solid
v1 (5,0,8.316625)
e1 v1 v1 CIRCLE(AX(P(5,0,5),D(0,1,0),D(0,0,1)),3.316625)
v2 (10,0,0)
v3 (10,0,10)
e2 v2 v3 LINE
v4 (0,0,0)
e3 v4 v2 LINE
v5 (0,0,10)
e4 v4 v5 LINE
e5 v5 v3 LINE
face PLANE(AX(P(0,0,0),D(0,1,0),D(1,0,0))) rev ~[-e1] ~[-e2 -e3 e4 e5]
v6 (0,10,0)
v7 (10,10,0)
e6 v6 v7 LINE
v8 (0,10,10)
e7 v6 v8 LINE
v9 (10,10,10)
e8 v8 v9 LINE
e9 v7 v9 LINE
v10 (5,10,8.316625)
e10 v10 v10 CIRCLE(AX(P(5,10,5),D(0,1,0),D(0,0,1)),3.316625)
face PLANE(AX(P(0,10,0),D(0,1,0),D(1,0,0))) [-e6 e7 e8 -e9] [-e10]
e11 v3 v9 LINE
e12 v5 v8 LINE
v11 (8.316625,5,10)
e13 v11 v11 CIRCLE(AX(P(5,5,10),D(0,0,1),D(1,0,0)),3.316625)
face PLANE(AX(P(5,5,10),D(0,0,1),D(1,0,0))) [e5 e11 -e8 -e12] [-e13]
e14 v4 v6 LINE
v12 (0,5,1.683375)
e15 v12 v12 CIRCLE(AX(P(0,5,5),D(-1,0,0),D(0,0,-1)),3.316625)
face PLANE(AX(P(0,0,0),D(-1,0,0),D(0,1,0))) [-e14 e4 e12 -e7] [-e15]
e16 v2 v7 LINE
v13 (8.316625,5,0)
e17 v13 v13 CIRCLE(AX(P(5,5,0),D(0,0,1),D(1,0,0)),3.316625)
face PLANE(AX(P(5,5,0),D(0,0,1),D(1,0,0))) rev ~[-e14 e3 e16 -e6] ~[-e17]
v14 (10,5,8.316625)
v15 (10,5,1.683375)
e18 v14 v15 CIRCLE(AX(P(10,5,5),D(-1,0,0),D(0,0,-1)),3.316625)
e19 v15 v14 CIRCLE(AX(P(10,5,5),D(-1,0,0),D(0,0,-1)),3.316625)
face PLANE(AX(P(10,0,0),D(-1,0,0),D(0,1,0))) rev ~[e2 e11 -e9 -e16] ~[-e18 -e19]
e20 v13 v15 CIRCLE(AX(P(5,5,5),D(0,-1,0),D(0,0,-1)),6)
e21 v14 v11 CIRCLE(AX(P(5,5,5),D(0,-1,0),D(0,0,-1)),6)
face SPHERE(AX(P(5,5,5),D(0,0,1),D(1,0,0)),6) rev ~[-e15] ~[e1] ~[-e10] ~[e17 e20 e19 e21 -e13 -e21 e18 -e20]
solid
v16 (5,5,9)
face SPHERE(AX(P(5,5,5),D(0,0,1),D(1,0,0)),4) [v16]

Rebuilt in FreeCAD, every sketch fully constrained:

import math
import FreeCAD as App
import Part
import Sketcher
from FreeCAD import Vector


def add_polygon(sketch, points):
    """Adds a closed chain of lines whose ends are joined by coincident constraints."""
    first, n = sketch.GeometryCount, len(points)
    for a, b in zip(points, points[1:] + points[:1]):
        sketch.addGeometry(Part.LineSegment(App.Vector(*a, 0), App.Vector(*b, 0)), False)
    for i in range(n):
        sketch.addConstraint(Sketcher.Constraint("Coincident", first + i, 2, first + (i + 1) % n, 1))

doc = App.newDocument("Part")
body = doc.addObject("PartDesign::Body", "Body")

# Sketch on XZ plane
sketch1 = body.newObject("Sketcher::SketchObject", "Sketch")
sketch1.AttachmentSupport = (doc.getObject("XZ_Plane"), [""])
sketch1.MapMode = "FlatFace"
sketch1.AttachmentOffset = App.Placement(Vector(0, 0, -5), App.Rotation())
sketch1.addGeometry([
    Part.ArcOfCircle(Part.Circle(Vector(5, 5, 0), Vector(0, 0, 1), 6), math.radians(-90), math.radians(90)),
    Part.LineSegment(Vector(5, 11, 0), Vector(5, -1, 0)),
], False)
sketch1.addGeometry(Part.LineSegment(Vector(5, -1, 0), Vector(5, 11, 0)), True)  # axis
sketch1.addConstraint([
    Sketcher.Constraint("Coincident", 0, 1, 1, 2),
    Sketcher.Constraint("Coincident", 1, 1, 0, 2),
    Sketcher.Constraint("Vertical", 1),
    Sketcher.Constraint("Vertical", 2),
    Sketcher.Constraint("Coincident", 2, 1, 0, 1),
    Sketcher.Constraint("Equal", 1, 2),
    Sketcher.Constraint("Radius", 0, 6.0),
    Sketcher.Constraint("DistanceX", -1, 1, 0, 3, 5.0),
    Sketcher.Constraint("DistanceY", -1, 1, 0, 3, 5.0),
    Sketcher.Constraint("DistanceX", -1, 1, 0, 1, 5.0),
])
revolution = body.newObject("PartDesign::Revolution", "Revolution")
revolution.Profile = sketch1
revolution.ReferenceAxis = (sketch1, ["Axis0"])
revolution.Angle = 360
body2 = doc.addObject("PartDesign::Body", "Body001")

# Sketch on XY plane
sketch2 = body2.newObject("Sketcher::SketchObject", "Sketch001")
sketch2.AttachmentSupport = (doc.getObject("XY_Plane001"), [""])
sketch2.MapMode = "FlatFace"
add_polygon(sketch2, [(0, 10), (0, 0), (10, 0), (10, 10)])  # lines 0-3
sketch2.addConstraint([
    Sketcher.Constraint("Vertical", 0),
    Sketcher.Constraint("Horizontal", 1),
    Sketcher.Constraint("Vertical", 2),
    Sketcher.Constraint("Horizontal", 3),
    Sketcher.Constraint("Coincident", 0, 2, -1, 1),
    Sketcher.Constraint("Equal", 3, 0),
    Sketcher.Constraint("DistanceX", 1, 1, 1, 2, 10.0),
])
pad1 = body2.newObject("PartDesign::Pad", "Pad")
pad1.Profile = sketch2
pad1.Length = 10
doc.recompute()

boolean = body2.newObject("PartDesign::Boolean", "Boolean")
boolean.Type = "Cut"
boolean.addObjects([body])
body3 = doc.addObject("PartDesign::Body", "Body002")

# Sketch on XZ plane
sketch3 = body3.newObject("Sketcher::SketchObject", "Sketch002")
sketch3.AttachmentSupport = (doc.getObject("XZ_Plane002"), [""])
sketch3.MapMode = "FlatFace"
sketch3.AttachmentOffset = App.Placement(Vector(0, 0, -5), App.Rotation())
sketch3.addGeometry([
    Part.ArcOfCircle(Part.Circle(Vector(5, 5, 0), Vector(0, 0, 1), 4), math.radians(-90), math.radians(90)),
    Part.LineSegment(Vector(5, 9, 0), Vector(5, 1, 0)),
], False)
sketch3.addGeometry(Part.LineSegment(Vector(5, 1, 0), Vector(5, 9, 0)), True)  # axis
sketch3.addConstraint([
    Sketcher.Constraint("Coincident", 0, 1, 1, 2),
    Sketcher.Constraint("Coincident", 1, 1, 0, 2),
    Sketcher.Constraint("Vertical", 1),
    Sketcher.Constraint("Vertical", 2),
    Sketcher.Constraint("Coincident", 2, 1, 0, 1),
    Sketcher.Constraint("Equal", 1, 2),
    Sketcher.Constraint("Radius", 0, 4.0),
    Sketcher.Constraint("DistanceX", -1, 1, 0, 3, 5.0),
    Sketcher.Constraint("DistanceY", -1, 1, 0, 3, 5.0),
    Sketcher.Constraint("DistanceX", -1, 1, 0, 1, 5.0),
])
revolution2 = body3.newObject("PartDesign::Revolution", "Revolution001")
revolution2.Profile = sketch3
revolution2.ReferenceAxis = (sketch3, ["Axis0"])
revolution2.Angle = 360

doc.recompute()
